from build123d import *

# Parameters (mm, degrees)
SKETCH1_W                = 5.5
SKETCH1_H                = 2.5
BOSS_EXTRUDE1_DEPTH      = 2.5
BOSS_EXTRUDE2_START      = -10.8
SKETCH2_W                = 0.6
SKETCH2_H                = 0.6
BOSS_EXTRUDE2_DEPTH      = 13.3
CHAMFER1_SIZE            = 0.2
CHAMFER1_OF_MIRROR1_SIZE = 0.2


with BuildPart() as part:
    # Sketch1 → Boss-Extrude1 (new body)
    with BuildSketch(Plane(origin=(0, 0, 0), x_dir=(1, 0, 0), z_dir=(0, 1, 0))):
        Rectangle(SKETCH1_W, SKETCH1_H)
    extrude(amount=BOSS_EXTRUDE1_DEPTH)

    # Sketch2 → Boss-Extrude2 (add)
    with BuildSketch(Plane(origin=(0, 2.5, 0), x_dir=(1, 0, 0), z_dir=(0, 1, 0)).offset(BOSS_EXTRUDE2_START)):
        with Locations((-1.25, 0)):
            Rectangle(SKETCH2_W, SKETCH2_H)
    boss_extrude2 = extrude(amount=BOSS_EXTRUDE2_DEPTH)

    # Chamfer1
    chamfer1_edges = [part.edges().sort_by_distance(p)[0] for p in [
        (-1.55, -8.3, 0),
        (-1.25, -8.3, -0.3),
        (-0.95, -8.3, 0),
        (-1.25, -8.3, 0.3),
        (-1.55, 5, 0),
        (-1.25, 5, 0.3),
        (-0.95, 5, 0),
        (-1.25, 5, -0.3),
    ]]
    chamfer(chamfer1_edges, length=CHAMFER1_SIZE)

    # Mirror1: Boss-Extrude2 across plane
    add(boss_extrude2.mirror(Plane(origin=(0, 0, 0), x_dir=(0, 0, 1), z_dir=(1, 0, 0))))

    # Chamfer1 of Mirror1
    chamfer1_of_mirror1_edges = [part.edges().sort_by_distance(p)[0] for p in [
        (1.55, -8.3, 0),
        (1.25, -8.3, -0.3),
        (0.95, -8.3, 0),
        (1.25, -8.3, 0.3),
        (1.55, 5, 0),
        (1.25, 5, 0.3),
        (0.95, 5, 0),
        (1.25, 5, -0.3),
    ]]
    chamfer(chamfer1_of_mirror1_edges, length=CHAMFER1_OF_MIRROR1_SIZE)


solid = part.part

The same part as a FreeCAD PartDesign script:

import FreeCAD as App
import Part
import Sketcher
Q = App.Units.Quantity


def edges_at(feature, points):
    """Names of the edges that pass closest to the given points."""
    edges = feature.Shape.Edges
    near = lambda p: min(range(len(edges)), key=lambda i: edges[i].distToShape(Part.Vertex(*p))[0])
    return sorted({f"Edge{near(p) + 1}" for p in points})


def add_polygon(sketch, points):
    """Adds a closed chain of lines whose ends are joined by coincident constraints."""
    first, n = sketch.GeometryCount, len(points)
    for a, b in zip(points, points[1:] + points[:1]):
        sketch.addGeometry(Part.LineSegment(App.Vector(*a, 0), App.Vector(*b, 0)), False)
    for i in range(n):
        sketch.addConstraint(Sketcher.Constraint("Coincident", first + i, 2, first + (i + 1) % n, 1))

doc = App.newDocument("Part")
body = doc.addObject("PartDesign::Body", "Body")

sketch1 = body.newObject("Sketcher::SketchObject", "Sketch")
sketch1.AttachmentSupport = (doc.getObject("XZ_Plane"), [""])
sketch1.MapMode = "FlatFace"
add_polygon(sketch1, [(-2.8, -1.2), (-2.8, 1.2), (2.8, 1.2), (2.8, -1.2)])
sketch1.addConstraint([
    Sketcher.Constraint("Vertical", 0),
    Sketcher.Constraint("Horizontal", 1),
    Sketcher.Constraint("Vertical", 2),
    Sketcher.Constraint("Horizontal", 3),
    Sketcher.Constraint("Symmetric", 0, 2, 2, 2, -1, 1),
    Sketcher.Constraint("DistanceX", 1, 1, 1, 2, Q("5.5 mm")),
    Sketcher.Constraint("DistanceY", 0, 1, 0, 2, Q("2.5 mm")),
])
pad1 = body.newObject("PartDesign::Pad", "Pad")
pad1.Profile = sketch1
pad1.Length = 2.5
pad1.Reversed = True

sketch2 = body.newObject("Sketcher::SketchObject", "Sketch001")
sketch2.AttachmentSupport = (doc.getObject("XZ_Plane"), [""])
sketch2.MapMode = "FlatFace"
sketch2.AttachmentOffset = App.Placement(App.Vector(0, 0, 8.3), App.Rotation())
add_polygon(sketch2, [(-1.6, -0.3), (-1.6, 0.3), (-0.9, 0.3), (-0.9, -0.3)])
sketch2.addConstraint([
    Sketcher.Constraint("Vertical", 0),
    Sketcher.Constraint("Horizontal", 1),
    Sketcher.Constraint("Vertical", 2),
    Sketcher.Constraint("Horizontal", 3),
    Sketcher.Constraint("Equal", 3, 0),
    Sketcher.Constraint("DistanceX", 1, 1, 1, 2, Q("0.6 mm")),
    Sketcher.Constraint("DistanceY", -1, 1, 0, 2, Q("0.3 mm")),
    Sketcher.Constraint("DistanceX", 0, 2, -1, 1, Q("1.55 mm")),
])
pad2 = body.newObject("PartDesign::Pad", "Pad001")
pad2.Profile = sketch2
pad2.Length = 13.3
pad2.Reversed = True
doc.recompute()

chamfer = body.newObject("PartDesign::Chamfer", "Chamfer")
chamfer.Base = (pad2, edges_at(pad2, [
    (-1.55, -8.3, 0),
    (-1.25, -8.3, -0.3),
    (-0.95, -8.3, 0),
    (-1.25, -8.3, 0.3),
    (-1.55, 5, 0),
    (-1.25, 5, 0.3),
    (-0.95, 5, 0),
    (-1.25, 5, -0.3),
]))
chamfer.Size = 0.2
doc.recompute()

mirrored = body.newObject("PartDesign::Mirrored", "Mirrored")
mirrored.Originals = [pad2]
mirrored.MirrorPlane = (doc.getObject("YZ_Plane"), [""])
body.Tip = mirrored
doc.recompute()

chamfer2 = body.newObject("PartDesign::Chamfer", "Chamfer001")
chamfer2.Base = (mirrored, edges_at(mirrored, [
    (1.55, -8.3, 0),
    (1.25, -8.3, -0.3),
    (0.95, -8.3, 0),
    (1.25, -8.3, 0.3),
    (1.55, 5, 0),
    (1.25, 5, 0.3),
    (0.95, 5, 0),
    (1.25, 5, -0.3),
]))
chamfer2.Size = 0.2

doc.recompute()
